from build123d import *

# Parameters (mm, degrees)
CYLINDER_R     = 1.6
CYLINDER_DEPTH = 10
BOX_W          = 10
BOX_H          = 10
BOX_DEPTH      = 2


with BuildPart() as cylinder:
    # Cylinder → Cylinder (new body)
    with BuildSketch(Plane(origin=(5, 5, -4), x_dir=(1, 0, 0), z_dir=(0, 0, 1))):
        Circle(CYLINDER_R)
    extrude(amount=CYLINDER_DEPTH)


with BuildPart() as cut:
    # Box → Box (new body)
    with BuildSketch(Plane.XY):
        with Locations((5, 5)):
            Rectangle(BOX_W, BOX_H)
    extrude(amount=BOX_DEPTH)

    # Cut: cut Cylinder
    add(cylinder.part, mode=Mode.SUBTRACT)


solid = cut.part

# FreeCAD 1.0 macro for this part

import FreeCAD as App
import Part
import Sketcher
from FreeCAD import Vector
Q = App.Units.Quantity

doc = App.newDocument("Part")
body = doc.addObject("PartDesign::Body", "Body")

sketch1 = body.newObject("Sketcher::SketchObject", "Sketch")
sketch1.AttachmentSupport = (doc.getObject("XY_Plane"), [""])
sketch1.MapMode = "FlatFace"
sketch1.AttachmentOffset = App.Placement(Vector(0, 0, -4), App.Rotation())
sketch1.addGeometry(Part.Circle(Vector(5, 5, 0), Vector(0, 0, 1), 1.6), False)
sketch1.addConstraint([
    Sketcher.Constraint("Diameter", 0, Q("3.2 mm")),
    Sketcher.Constraint("DistanceX", -1, 1, 0, 3, Q("5 mm")),
    Sketcher.Constraint("DistanceY", -1, 1, 0, 3, Q("5 mm")),
])
pad1 = body.newObject("PartDesign::Pad", "Pad")
pad1.Profile = sketch1
pad1.Length = 10
body2 = doc.addObject("PartDesign::Body", "Body001")

sketch2 = body2.newObject("Sketcher::SketchObject", "Sketch001")
sketch2.AttachmentSupport = (doc.getObject("XY_Plane001"), [""])
sketch2.MapMode = "FlatFace"
sketch2.addGeometry([
    Part.LineSegment(Vector(0, 10, 0), Vector(0, 0, 0)),
    Part.LineSegment(Vector(0, 0, 0), Vector(10, 0, 0)),
    Part.LineSegment(Vector(10, 0, 0), Vector(10, 10, 0)),
    Part.LineSegment(Vector(10, 10, 0), Vector(0, 10, 0)),
], False)
sketch2.addConstraint([
    Sketcher.Constraint("Coincident", 0, 2, 1, 1),
    Sketcher.Constraint("Coincident", 1, 2, 2, 1),
    Sketcher.Constraint("Coincident", 2, 2, 3, 1),
    Sketcher.Constraint("Coincident", 3, 2, 0, 1),
    Sketcher.Constraint("Vertical", 0),
    Sketcher.Constraint("Horizontal", 1),
    Sketcher.Constraint("Vertical", 2),
    Sketcher.Constraint("Horizontal", 3),
    Sketcher.Constraint("Coincident", 0, 2, -1, 1),
    Sketcher.Constraint("Equal", 3, 0),
    Sketcher.Constraint("DistanceX", 1, 1, 1, 2, Q("10 mm")),
])
pad2 = body2.newObject("PartDesign::Pad", "Pad001")
pad2.Profile = sketch2
pad2.Length = 2
doc.recompute()

boolean = body2.newObject("PartDesign::Boolean", "Boolean")
boolean.Type = "Cut"
boolean.addObjects([body])

doc.recompute()
